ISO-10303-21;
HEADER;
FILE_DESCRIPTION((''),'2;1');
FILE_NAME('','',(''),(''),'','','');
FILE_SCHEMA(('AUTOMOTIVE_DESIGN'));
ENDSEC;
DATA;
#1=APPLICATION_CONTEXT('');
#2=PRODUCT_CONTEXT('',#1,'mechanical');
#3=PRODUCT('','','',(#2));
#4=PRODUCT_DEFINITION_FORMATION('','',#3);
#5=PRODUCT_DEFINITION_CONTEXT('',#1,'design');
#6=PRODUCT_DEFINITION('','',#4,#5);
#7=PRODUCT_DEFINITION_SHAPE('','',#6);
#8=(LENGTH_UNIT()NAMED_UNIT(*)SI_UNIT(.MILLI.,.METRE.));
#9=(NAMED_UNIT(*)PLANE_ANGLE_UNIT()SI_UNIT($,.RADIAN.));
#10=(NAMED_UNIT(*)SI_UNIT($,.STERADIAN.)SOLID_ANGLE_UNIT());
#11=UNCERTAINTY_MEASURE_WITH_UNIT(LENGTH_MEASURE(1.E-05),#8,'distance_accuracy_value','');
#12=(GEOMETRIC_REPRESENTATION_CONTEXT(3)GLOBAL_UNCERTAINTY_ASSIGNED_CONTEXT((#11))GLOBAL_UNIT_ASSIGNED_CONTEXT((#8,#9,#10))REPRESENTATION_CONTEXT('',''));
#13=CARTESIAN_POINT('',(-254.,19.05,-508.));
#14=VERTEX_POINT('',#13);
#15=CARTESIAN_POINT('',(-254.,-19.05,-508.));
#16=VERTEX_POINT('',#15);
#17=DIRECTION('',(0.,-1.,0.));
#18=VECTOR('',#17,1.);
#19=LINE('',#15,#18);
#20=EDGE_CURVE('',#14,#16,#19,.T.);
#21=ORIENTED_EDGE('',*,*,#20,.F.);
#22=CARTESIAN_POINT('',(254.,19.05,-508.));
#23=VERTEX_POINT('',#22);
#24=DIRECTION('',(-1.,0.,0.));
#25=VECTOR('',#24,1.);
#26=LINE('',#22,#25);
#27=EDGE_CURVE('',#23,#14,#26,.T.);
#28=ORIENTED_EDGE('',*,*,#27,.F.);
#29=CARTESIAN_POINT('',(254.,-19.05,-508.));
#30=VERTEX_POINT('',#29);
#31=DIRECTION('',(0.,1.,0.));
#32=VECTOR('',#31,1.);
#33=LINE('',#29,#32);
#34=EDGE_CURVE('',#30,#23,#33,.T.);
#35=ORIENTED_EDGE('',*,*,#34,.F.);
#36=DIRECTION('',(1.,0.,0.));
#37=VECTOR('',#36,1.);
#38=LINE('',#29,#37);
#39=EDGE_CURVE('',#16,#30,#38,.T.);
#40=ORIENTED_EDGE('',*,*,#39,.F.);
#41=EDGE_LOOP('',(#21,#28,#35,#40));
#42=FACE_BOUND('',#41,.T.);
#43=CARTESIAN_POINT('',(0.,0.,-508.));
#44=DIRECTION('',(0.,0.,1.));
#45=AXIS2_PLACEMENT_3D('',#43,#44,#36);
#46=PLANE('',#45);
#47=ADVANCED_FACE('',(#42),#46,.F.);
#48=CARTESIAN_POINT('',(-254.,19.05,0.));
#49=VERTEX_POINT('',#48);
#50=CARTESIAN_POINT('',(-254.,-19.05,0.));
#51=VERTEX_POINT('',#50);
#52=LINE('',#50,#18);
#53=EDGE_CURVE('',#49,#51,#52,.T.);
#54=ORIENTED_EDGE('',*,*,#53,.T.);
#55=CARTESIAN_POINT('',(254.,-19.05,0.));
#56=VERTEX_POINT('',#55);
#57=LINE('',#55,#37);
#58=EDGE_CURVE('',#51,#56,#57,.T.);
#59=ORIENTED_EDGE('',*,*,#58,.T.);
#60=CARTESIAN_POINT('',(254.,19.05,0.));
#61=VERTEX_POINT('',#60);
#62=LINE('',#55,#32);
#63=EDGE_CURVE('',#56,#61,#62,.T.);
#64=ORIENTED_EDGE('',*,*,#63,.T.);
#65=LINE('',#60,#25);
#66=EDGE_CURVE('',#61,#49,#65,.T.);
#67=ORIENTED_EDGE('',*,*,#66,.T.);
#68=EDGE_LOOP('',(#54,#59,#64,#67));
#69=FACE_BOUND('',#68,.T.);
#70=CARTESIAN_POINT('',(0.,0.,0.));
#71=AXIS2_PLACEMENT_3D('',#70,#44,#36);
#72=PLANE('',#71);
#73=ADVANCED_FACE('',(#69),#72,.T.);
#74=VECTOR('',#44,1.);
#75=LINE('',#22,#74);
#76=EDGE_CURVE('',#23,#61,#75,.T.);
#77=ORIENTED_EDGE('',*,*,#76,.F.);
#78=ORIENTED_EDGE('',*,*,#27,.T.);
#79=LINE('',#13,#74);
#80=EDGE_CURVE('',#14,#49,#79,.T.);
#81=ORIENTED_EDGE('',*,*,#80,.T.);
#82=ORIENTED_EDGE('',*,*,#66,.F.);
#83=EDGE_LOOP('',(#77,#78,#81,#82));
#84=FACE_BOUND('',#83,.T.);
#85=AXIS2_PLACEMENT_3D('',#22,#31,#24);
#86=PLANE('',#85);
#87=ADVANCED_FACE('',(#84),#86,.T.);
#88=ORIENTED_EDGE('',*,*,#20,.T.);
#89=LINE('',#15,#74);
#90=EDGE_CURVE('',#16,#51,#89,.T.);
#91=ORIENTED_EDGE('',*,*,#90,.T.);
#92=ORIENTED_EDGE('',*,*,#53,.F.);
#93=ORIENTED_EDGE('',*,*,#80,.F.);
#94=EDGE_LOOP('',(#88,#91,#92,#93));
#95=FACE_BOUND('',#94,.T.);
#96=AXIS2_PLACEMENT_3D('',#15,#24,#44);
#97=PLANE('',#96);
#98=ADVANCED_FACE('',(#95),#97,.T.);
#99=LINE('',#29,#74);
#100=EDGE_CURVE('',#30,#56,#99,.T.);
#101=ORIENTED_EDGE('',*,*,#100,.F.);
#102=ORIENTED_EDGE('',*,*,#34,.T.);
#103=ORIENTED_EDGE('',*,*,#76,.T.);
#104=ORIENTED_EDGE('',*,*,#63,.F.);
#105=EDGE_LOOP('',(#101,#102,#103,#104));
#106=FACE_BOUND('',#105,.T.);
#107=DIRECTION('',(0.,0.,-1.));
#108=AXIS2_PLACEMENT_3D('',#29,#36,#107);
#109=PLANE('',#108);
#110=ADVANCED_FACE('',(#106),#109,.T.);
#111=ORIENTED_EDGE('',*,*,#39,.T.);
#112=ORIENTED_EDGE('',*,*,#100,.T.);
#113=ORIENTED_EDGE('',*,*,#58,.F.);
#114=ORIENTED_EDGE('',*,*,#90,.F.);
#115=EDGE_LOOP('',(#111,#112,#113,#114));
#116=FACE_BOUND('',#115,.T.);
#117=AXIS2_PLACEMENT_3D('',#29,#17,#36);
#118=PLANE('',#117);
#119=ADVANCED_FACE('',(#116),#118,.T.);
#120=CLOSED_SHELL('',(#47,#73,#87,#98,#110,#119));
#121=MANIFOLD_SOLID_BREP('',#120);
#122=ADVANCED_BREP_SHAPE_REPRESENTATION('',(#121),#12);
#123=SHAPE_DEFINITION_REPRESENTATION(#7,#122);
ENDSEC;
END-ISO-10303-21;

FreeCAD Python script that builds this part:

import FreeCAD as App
import Part
import Sketcher
Q = App.Units.Quantity


def add_polygon(sketch, points):
    """Adds a closed chain of lines whose ends are joined by coincident constraints."""
    first, n = sketch.GeometryCount, len(points)
    for a, b in zip(points, points[1:] + points[:1]):
        sketch.addGeometry(Part.LineSegment(App.Vector(*a, 0), App.Vector(*b, 0)), False)
    for i in range(n):
        sketch.addConstraint(Sketcher.Constraint("Coincident", first + i, 2, first + (i + 1) % n, 1))

doc = App.newDocument("Part")
body = doc.addObject("PartDesign::Body", "Body")

sketch1 = doc.addObject("Sketcher::SketchObject", "Sketch")
body.addObject(sketch1)
sketch1.AttachmentSupport = (doc.XY_Plane, [""])
sketch1.MapMode = "FlatFace"
add_polygon(sketch1, [(-254, 19), (-254, -19), (254, -19), (254, 19)])
sketch1.addConstraint([
    Sketcher.Constraint("Vertical", 0),
    Sketcher.Constraint("Horizontal", 1),
    Sketcher.Constraint("Vertical", 2),
    Sketcher.Constraint("Horizontal", 3),
    Sketcher.Constraint("Symmetric", 0, 2, 2, 2, -1, 1),
    Sketcher.Constraint("DistanceX", 1, 1, 1, 2, Q("20 in")),
    Sketcher.Constraint("DistanceY", 0, 2, 0, 1, Q("1.5 in")),
])
pad1 = doc.addObject("PartDesign::Pad", "Pad")
body.addObject(pad1)
pad1.Profile = sketch1
pad1.Length = Q("20 in")
pad1.Reversed = True

doc.recompute()
